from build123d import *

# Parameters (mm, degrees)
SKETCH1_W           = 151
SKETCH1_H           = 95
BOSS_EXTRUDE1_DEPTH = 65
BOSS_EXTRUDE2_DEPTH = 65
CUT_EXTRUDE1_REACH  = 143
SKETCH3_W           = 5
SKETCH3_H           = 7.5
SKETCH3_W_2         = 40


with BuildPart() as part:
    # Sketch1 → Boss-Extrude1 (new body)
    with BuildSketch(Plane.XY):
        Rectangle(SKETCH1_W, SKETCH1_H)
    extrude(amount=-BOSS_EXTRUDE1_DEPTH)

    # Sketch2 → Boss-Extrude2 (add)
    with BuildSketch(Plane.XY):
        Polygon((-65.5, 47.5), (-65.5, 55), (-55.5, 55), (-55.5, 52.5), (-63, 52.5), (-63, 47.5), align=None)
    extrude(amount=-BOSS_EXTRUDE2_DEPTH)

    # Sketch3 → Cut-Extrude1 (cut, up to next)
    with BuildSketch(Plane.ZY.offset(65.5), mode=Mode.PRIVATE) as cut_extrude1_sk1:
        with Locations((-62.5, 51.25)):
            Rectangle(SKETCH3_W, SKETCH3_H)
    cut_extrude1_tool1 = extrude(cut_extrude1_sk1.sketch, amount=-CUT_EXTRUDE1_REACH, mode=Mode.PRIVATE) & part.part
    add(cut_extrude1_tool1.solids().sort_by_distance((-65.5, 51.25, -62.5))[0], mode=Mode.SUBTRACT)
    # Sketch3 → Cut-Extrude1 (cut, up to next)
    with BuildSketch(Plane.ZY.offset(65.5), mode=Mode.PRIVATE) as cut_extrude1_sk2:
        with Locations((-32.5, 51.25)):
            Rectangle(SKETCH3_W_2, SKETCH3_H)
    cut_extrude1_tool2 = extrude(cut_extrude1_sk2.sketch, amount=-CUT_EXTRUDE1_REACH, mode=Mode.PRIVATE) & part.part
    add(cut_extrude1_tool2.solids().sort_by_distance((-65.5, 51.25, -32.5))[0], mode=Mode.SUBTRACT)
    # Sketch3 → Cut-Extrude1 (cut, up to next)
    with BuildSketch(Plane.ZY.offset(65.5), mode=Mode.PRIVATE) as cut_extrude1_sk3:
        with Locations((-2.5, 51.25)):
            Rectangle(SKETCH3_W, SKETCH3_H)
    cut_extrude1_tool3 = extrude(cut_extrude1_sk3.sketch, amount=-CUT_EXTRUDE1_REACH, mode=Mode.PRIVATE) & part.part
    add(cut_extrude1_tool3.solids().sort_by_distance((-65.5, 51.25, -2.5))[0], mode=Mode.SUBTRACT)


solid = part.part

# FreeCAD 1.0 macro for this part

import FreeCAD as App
import Part
import Sketcher
Q = App.Units.Quantity

doc = App.newDocument("Part")
body = doc.addObject("PartDesign::Body", "Body")

# Sketch on XY plane
sketch1 = body.newObject("Sketcher::SketchObject", "Sketch")
sketch1.AttachmentSupport = (doc.getObject("XY_Plane"), [""])
sketch1.MapMode = "FlatFace"
sketch1.addGeometry([
    Part.LineSegment(App.Vector(-76, 48, 0), App.Vector(-76, -48, 0)),
    Part.LineSegment(App.Vector(-76, -48, 0), App.Vector(76, -48, 0)),
    Part.LineSegment(App.Vector(76, -48, 0), App.Vector(76, 48, 0)),
    Part.LineSegment(App.Vector(76, 48, 0), App.Vector(-76, 48, 0)),
], False)
sketch1.addConstraint([
    Sketcher.Constraint("Coincident", 0, 2, 1, 1),
    Sketcher.Constraint("Coincident", 1, 2, 2, 1),
    Sketcher.Constraint("Coincident", 2, 2, 3, 1),
    Sketcher.Constraint("Coincident", 3, 2, 0, 1),
    Sketcher.Constraint("Vertical", 0),
    Sketcher.Constraint("Horizontal", 1),
    Sketcher.Constraint("Vertical", 2),
    Sketcher.Constraint("Horizontal", 3),
    Sketcher.Constraint("Symmetric", 0, 2, 2, 2, -1, 1),
    Sketcher.Constraint("DistanceX", 1, 1, 1, 2, Q("151 mm")),
    Sketcher.Constraint("DistanceY", 0, 2, 0, 1, Q("95 mm")),
])
pad1 = body.newObject("PartDesign::Pad", "Pad")
pad1.Profile = sketch1
pad1.Length = 65
pad1.Reversed = True

# Sketch on XY plane
sketch2 = body.newObject("Sketcher::SketchObject", "Sketch001")
sketch2.AttachmentSupport = (doc.getObject("XY_Plane"), [""])
sketch2.MapMode = "FlatFace"
sketch2.addGeometry([
    Part.LineSegment(App.Vector(-65.5, 55, 0), App.Vector(-65.5, 47.5, 0)),  # 0
    Part.LineSegment(App.Vector(-65.5, 47.5, 0), App.Vector(-63, 47.5, 0)),  # 1
    Part.LineSegment(App.Vector(-63, 47.5, 0), App.Vector(-63, 52.5, 0)),  # 2
    Part.LineSegment(App.Vector(-63, 52.5, 0), App.Vector(-55.5, 52.5, 0)),  # 3
    Part.LineSegment(App.Vector(-55.5, 52.5, 0), App.Vector(-55.5, 55, 0)),  # 4
    Part.LineSegment(App.Vector(-55.5, 55, 0), App.Vector(-65.5, 55, 0)),  # 5
], False)
sketch2.addConstraint([
    Sketcher.Constraint("Coincident", 0, 2, 1, 1),
    Sketcher.Constraint("Coincident", 1, 2, 2, 1),
    Sketcher.Constraint("Coincident", 2, 2, 3, 1),
    Sketcher.Constraint("Coincident", 3, 2, 4, 1),
    Sketcher.Constraint("Coincident", 4, 2, 5, 1),
    Sketcher.Constraint("Coincident", 5, 2, 0, 1),
    Sketcher.Constraint("Vertical", 0),
    Sketcher.Constraint("Horizontal", 1),
    Sketcher.Constraint("Vertical", 2),
    Sketcher.Constraint("Horizontal", 3),
    Sketcher.Constraint("Vertical", 4),
    Sketcher.Constraint("Horizontal", 5),
    Sketcher.Constraint("Equal", 3, 0),
    Sketcher.Constraint("Equal", 1, 4),
    Sketcher.Constraint("DistanceX", 5, 2, 5, 1, Q("10 mm")),
    Sketcher.Constraint("DistanceY", 2, 1, 2, 2, Q("5 mm")),
    Sketcher.Constraint("DistanceX", 1, 2, -1, 1, Q("63 mm")),
    Sketcher.Constraint("DistanceY", -1, 1, 4, 2, Q("55 mm")),
])
pad2 = body.newObject("PartDesign::Pad", "Pad001")
pad2.Profile = sketch2
pad2.Length = 65
pad2.Reversed = True

# Sketch on YZ plane
sketch3 = body.newObject("Sketcher::SketchObject", "Sketch002")
sketch3.AttachmentSupport = (doc.getObject("YZ_Plane"), [""])
sketch3.MapMode = "FlatFace"
sketch3.AttachmentOffset = App.Placement(App.Vector(0, 0, -65.5), App.Rotation())
sketch3.addGeometry([
    Part.LineSegment(App.Vector(55, -65, 0), App.Vector(48, -65, 0)),
    Part.LineSegment(App.Vector(48, -65, 0), App.Vector(48, -60, 0)),
    Part.LineSegment(App.Vector(48, -60, 0), App.Vector(55, -60, 0)),
    Part.LineSegment(App.Vector(55, -60, 0), App.Vector(55, -65, 0)),
], False)
sketch3.addConstraint([
    Sketcher.Constraint("Coincident", 0, 2, 1, 1),
    Sketcher.Constraint("Coincident", 1, 2, 2, 1),
    Sketcher.Constraint("Coincident", 2, 2, 3, 1),
    Sketcher.Constraint("Coincident", 3, 2, 0, 1),
    Sketcher.Constraint("Horizontal", 0),
    Sketcher.Constraint("Vertical", 1),
    Sketcher.Constraint("Horizontal", 2),
    Sketcher.Constraint("Vertical", 3),
    Sketcher.Constraint("DistanceY", 1, 1, 1, 2, Q("5 mm")),
    Sketcher.Constraint("DistanceX", 0, 2, 0, 1, Q("7.5 mm")),
    Sketcher.Constraint("DistanceY", 0, 2, -1, 1, Q("65 mm")),
    Sketcher.Constraint("DistanceX", -1, 1, 2, 2, Q("55 mm")),
])
pocket1 = body.newObject("PartDesign::Pocket", "Pocket")
pocket1.Profile = sketch3
pocket1.Length = 10
pocket1.Reversed = True

# Sketch on YZ plane
sketch4 = body.newObject("Sketcher::SketchObject", "Sketch003")
sketch4.AttachmentSupport = (doc.getObject("YZ_Plane"), [""])
sketch4.MapMode = "FlatFace"
sketch4.AttachmentOffset = App.Placement(App.Vector(0, 0, -65.5), App.Rotation())
sketch4.addGeometry([
    Part.LineSegment(App.Vector(55, -52, 0), App.Vector(48, -52, 0)),
    Part.LineSegment(App.Vector(48, -52, 0), App.Vector(48, -12, 0)),
    Part.LineSegment(App.Vector(48, -12, 0), App.Vector(55, -12, 0)),
    Part.LineSegment(App.Vector(55, -12, 0), App.Vector(55, -52, 0)),
], False)
sketch4.addConstraint([
    Sketcher.Constraint("Coincident", 0, 2, 1, 1),
    Sketcher.Constraint("Coincident", 1, 2, 2, 1),
    Sketcher.Constraint("Coincident", 2, 2, 3, 1),
    Sketcher.Constraint("Coincident", 3, 2, 0, 1),
    Sketcher.Constraint("Horizontal", 0),
    Sketcher.Constraint("Vertical", 1),
    Sketcher.Constraint("Horizontal", 2),
    Sketcher.Constraint("Vertical", 3),
    Sketcher.Constraint("DistanceY", 1, 1, 1, 2, Q("40 mm")),
    Sketcher.Constraint("DistanceX", 0, 2, 0, 1, Q("7.5 mm")),
    Sketcher.Constraint("DistanceX", -1, 1, 2, 2, Q("55 mm")),
    Sketcher.Constraint("DistanceY", 0, 2, -1, 1, Q("52.5 mm")),
])
pocket2 = body.newObject("PartDesign::Pocket", "Pocket001")
pocket2.Profile = sketch4
pocket2.Length = 10
pocket2.Reversed = True

# Sketch on YZ plane
sketch5 = body.newObject("Sketcher::SketchObject", "Sketch004")
sketch5.AttachmentSupport = (doc.getObject("YZ_Plane"), [""])
sketch5.MapMode = "FlatFace"
sketch5.AttachmentOffset = App.Placement(App.Vector(0, 0, -65.5), App.Rotation())
sketch5.addGeometry([
    Part.LineSegment(App.Vector(55, -5, 0), App.Vector(48, -5, 0)),
    Part.LineSegment(App.Vector(48, -5, 0), App.Vector(48, 0, 0)),
    Part.LineSegment(App.Vector(48, 0, 0), App.Vector(55, 0, 0)),
    Part.LineSegment(App.Vector(55, 0, 0), App.Vector(55, -5, 0)),
], False)
sketch5.addConstraint([
    Sketcher.Constraint("Coincident", 0, 2, 1, 1),
    Sketcher.Constraint("Coincident", 1, 2, 2, 1),
    Sketcher.Constraint("Coincident", 2, 2, 3, 1),
    Sketcher.Constraint("Coincident", 3, 2, 0, 1),
    Sketcher.Constraint("Horizontal", 0),
    Sketcher.Constraint("Vertical", 1),
    Sketcher.Constraint("Horizontal", 2),
    Sketcher.Constraint("Vertical", 3),
    Sketcher.Constraint("PointOnObject", 1, 2, -1),
    Sketcher.Constraint("DistanceY", 1, 1, 1, 2, Q("5 mm")),
    Sketcher.Constraint("DistanceX", 0, 2, 0, 1, Q("7.5 mm")),
    Sketcher.Constraint("DistanceX", -1, 1, 2, 2, Q("55 mm")),
])
pocket3 = body.newObject("PartDesign::Pocket", "Pocket002")
pocket3.Profile = sketch5
pocket3.Length = 10
pocket3.Reversed = True

doc.recompute()
